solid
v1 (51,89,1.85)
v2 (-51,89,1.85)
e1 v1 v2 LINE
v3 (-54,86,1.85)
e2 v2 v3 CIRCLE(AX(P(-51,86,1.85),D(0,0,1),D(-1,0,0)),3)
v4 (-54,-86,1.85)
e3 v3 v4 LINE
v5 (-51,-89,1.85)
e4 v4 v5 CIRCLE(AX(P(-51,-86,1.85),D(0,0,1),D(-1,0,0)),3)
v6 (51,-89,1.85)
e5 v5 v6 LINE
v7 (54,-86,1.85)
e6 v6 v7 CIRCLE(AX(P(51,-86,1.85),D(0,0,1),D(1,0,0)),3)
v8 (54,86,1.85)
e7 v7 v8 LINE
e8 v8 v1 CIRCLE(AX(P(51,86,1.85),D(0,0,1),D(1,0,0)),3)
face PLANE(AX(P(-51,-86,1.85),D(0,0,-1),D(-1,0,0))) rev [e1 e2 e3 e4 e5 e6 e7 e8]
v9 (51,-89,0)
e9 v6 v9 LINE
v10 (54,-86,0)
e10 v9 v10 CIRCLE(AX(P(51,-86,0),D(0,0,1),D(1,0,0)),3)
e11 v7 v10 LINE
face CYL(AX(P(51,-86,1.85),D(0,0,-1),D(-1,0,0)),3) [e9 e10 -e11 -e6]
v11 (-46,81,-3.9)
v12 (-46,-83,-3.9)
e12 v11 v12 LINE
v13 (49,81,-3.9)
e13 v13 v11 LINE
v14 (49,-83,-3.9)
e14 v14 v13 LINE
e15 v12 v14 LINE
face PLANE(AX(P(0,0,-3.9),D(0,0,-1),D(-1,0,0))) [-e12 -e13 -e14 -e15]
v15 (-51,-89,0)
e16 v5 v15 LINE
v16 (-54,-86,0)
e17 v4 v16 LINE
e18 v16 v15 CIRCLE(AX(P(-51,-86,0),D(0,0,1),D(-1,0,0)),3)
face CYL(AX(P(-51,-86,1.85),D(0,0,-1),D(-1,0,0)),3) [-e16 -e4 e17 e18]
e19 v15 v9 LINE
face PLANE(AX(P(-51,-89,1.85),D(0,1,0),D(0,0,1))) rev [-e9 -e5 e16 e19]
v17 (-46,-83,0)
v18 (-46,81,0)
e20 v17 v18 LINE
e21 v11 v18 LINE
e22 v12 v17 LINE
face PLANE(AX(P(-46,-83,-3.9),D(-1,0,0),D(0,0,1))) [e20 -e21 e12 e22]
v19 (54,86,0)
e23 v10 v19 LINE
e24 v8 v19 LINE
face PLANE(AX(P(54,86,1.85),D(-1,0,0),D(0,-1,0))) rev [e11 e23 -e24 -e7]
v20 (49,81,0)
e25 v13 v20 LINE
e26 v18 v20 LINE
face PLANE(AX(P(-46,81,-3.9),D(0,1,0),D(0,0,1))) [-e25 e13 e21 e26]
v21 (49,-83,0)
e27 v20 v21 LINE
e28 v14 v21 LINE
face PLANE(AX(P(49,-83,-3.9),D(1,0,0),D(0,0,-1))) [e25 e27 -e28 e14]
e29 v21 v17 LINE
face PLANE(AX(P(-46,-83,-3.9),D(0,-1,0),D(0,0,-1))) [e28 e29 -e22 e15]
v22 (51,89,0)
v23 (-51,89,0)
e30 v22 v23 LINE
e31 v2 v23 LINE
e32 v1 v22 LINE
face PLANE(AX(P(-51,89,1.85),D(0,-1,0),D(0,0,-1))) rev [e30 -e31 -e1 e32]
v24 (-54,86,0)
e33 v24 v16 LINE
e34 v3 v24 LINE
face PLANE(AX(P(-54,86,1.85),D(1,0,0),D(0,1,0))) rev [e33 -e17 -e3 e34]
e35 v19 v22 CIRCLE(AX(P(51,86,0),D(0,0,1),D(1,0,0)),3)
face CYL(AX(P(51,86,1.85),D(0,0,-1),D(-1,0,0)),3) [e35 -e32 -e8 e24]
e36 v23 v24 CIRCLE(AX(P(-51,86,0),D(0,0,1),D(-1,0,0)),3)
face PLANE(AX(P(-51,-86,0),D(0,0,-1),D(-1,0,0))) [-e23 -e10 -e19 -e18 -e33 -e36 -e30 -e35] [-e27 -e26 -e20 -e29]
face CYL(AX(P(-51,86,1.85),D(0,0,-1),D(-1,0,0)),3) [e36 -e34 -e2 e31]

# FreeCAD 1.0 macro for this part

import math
import FreeCAD as App
import Part
import Sketcher
from FreeCAD import Vector
Q = App.Units.Quantity

doc = App.newDocument("Part")
params = doc.addObject("Spreadsheet::Sheet", "Params")
for row, (alias, value) in enumerate([
    ("sketch1_radius", "3 mm"),
    ("sketch1_width", "102 mm"),
    ("sketch1_height", "172 mm"),
    ("pad1_length", "1.85 mm"),
    ("sketch2_width", "95 mm"),
    ("sketch2_height", "164 mm"),
    ("pad2_length", "5.75 mm"),
], start=1):
    params.set(f"A{row}", alias)
    params.set(f"B{row}", "=" + value)
    params.setAlias(f"B{row}", alias)

body = doc.addObject("PartDesign::Body", "Body")

# Sketch on XY plane
sketch1 = body.newObject("Sketcher::SketchObject", "Sketch")
sketch1.AttachmentSupport = (doc.getObject("XY_Plane"), [""])
sketch1.MapMode = "FlatFace"
sketch1.addGeometry(Part.LineSegment(Vector(51, 89, 0), Vector(-51, 89, 0)), False)
sketch1.addGeometry(Part.ArcOfCircle(Part.Circle(Vector(-51, 86, 0), Vector(0, 0, 1), 3), math.radians(90), math.radians(180)), False)
sketch1.addGeometry(Part.LineSegment(Vector(-54, 86, 0), Vector(-54, -86, 0)), False)
sketch1.addGeometry(Part.ArcOfCircle(Part.Circle(Vector(-51, -86, 0), Vector(0, 0, 1), 3), math.radians(180), math.radians(270)), False)
sketch1.addGeometry(Part.LineSegment(Vector(-51, -89, 0), Vector(51, -89, 0)), False)
sketch1.addGeometry(Part.ArcOfCircle(Part.Circle(Vector(51, -86, 0), Vector(0, 0, 1), 3), math.radians(-90), math.radians(0)), False)
sketch1.addGeometry(Part.LineSegment(Vector(54, -86, 0), Vector(54, 86, 0)), False)
sketch1.addGeometry(Part.ArcOfCircle(Part.Circle(Vector(51, 86, 0), Vector(0, 0, 1), 3), math.radians(0), math.radians(90)), False)
sketch1.addConstraint(Sketcher.Constraint("Tangent", 0, 2, 1, 1))
sketch1.addConstraint(Sketcher.Constraint("Tangent", 1, 2, 2, 1))
sketch1.addConstraint(Sketcher.Constraint("Tangent", 2, 2, 3, 1))
sketch1.addConstraint(Sketcher.Constraint("Tangent", 3, 2, 4, 1))
sketch1.addConstraint(Sketcher.Constraint("Tangent", 4, 2, 5, 1))
sketch1.addConstraint(Sketcher.Constraint("Tangent", 5, 2, 6, 1))
sketch1.addConstraint(Sketcher.Constraint("Tangent", 6, 2, 7, 1))
sketch1.addConstraint(Sketcher.Constraint("Tangent", 7, 2, 0, 1))
sketch1.addConstraint(Sketcher.Constraint("Horizontal", 0))
sketch1.addConstraint(Sketcher.Constraint("Vertical", 2))
sketch1.addConstraint(Sketcher.Constraint("Horizontal", 4))
sketch1.addConstraint(Sketcher.Constraint("Vertical", 6))
sketch1.addConstraint(Sketcher.Constraint("Equal", 1, 3))
sketch1.addConstraint(Sketcher.Constraint("Equal", 3, 5))
sketch1.addConstraint(Sketcher.Constraint("Equal", 5, 7))
sketch1.addConstraint(Sketcher.Constraint("Symmetric", 1, 3, 5, 3, -1, 1))
sketch1.addConstraint(Sketcher.Constraint("Radius", 1, Q("3 mm")))
sketch1.addConstraint(Sketcher.Constraint("DistanceX", 0, 2, 0, 1, Q("102 mm")))
sketch1.addConstraint(Sketcher.Constraint("DistanceY", 2, 2, 2, 1, Q("172 mm")))
sketch1.setExpression("Constraints[16]", "Params.sketch1_radius")
sketch1.setExpression("Constraints[17]", "Params.sketch1_width")
sketch1.setExpression("Constraints[18]", "Params.sketch1_height")
pad1 = body.newObject("PartDesign::Pad", "Pad")
pad1.Profile = sketch1
pad1.setExpression("Length", "Params.pad1_length")

# Sketch on XY plane
sketch2 = body.newObject("Sketcher::SketchObject", "Sketch001")
sketch2.AttachmentSupport = (doc.getObject("XY_Plane"), [""])
sketch2.MapMode = "FlatFace"
sketch2.AttachmentOffset = App.Placement(Vector(0, 0, 1.85), App.Rotation())
sketch2.addGeometry(Part.LineSegment(Vector(-46, 81, 0), Vector(-46, -83, 0)), False)
sketch2.addGeometry(Part.LineSegment(Vector(-46, -83, 0), Vector(49, -83, 0)), False)
sketch2.addGeometry(Part.LineSegment(Vector(49, -83, 0), Vector(49, 81, 0)), False)
sketch2.addGeometry(Part.LineSegment(Vector(49, 81, 0), Vector(-46, 81, 0)), False)
sketch2.addConstraint(Sketcher.Constraint("Coincident", 0, 2, 1, 1))
sketch2.addConstraint(Sketcher.Constraint("Coincident", 1, 2, 2, 1))
sketch2.addConstraint(Sketcher.Constraint("Coincident", 2, 2, 3, 1))
sketch2.addConstraint(Sketcher.Constraint("Coincident", 3, 2, 0, 1))
sketch2.addConstraint(Sketcher.Constraint("Vertical", 0))
sketch2.addConstraint(Sketcher.Constraint("Horizontal", 1))
sketch2.addConstraint(Sketcher.Constraint("Vertical", 2))
sketch2.addConstraint(Sketcher.Constraint("Horizontal", 3))
sketch2.addConstraint(Sketcher.Constraint("DistanceX", 1, 1, 1, 2, Q("95 mm")))
sketch2.addConstraint(Sketcher.Constraint("DistanceY", 0, 2, 0, 1, Q("164 mm")))
sketch2.addConstraint(Sketcher.Constraint("DistanceX", 0, 2, -1, 1, Q("46 mm")))
sketch2.addConstraint(Sketcher.Constraint("DistanceY", 0, 2, -1, 1, Q("83 mm")))
sketch2.setExpression("Constraints[8]", "Params.sketch2_width")
sketch2.setExpression("Constraints[9]", "Params.sketch2_height")
pad2 = body.newObject("PartDesign::Pad", "Pad001")
pad2.Profile = sketch2
pad2.setExpression("Length", "Params.pad2_length")
pad2.Reversed = True

doc.recompute()
